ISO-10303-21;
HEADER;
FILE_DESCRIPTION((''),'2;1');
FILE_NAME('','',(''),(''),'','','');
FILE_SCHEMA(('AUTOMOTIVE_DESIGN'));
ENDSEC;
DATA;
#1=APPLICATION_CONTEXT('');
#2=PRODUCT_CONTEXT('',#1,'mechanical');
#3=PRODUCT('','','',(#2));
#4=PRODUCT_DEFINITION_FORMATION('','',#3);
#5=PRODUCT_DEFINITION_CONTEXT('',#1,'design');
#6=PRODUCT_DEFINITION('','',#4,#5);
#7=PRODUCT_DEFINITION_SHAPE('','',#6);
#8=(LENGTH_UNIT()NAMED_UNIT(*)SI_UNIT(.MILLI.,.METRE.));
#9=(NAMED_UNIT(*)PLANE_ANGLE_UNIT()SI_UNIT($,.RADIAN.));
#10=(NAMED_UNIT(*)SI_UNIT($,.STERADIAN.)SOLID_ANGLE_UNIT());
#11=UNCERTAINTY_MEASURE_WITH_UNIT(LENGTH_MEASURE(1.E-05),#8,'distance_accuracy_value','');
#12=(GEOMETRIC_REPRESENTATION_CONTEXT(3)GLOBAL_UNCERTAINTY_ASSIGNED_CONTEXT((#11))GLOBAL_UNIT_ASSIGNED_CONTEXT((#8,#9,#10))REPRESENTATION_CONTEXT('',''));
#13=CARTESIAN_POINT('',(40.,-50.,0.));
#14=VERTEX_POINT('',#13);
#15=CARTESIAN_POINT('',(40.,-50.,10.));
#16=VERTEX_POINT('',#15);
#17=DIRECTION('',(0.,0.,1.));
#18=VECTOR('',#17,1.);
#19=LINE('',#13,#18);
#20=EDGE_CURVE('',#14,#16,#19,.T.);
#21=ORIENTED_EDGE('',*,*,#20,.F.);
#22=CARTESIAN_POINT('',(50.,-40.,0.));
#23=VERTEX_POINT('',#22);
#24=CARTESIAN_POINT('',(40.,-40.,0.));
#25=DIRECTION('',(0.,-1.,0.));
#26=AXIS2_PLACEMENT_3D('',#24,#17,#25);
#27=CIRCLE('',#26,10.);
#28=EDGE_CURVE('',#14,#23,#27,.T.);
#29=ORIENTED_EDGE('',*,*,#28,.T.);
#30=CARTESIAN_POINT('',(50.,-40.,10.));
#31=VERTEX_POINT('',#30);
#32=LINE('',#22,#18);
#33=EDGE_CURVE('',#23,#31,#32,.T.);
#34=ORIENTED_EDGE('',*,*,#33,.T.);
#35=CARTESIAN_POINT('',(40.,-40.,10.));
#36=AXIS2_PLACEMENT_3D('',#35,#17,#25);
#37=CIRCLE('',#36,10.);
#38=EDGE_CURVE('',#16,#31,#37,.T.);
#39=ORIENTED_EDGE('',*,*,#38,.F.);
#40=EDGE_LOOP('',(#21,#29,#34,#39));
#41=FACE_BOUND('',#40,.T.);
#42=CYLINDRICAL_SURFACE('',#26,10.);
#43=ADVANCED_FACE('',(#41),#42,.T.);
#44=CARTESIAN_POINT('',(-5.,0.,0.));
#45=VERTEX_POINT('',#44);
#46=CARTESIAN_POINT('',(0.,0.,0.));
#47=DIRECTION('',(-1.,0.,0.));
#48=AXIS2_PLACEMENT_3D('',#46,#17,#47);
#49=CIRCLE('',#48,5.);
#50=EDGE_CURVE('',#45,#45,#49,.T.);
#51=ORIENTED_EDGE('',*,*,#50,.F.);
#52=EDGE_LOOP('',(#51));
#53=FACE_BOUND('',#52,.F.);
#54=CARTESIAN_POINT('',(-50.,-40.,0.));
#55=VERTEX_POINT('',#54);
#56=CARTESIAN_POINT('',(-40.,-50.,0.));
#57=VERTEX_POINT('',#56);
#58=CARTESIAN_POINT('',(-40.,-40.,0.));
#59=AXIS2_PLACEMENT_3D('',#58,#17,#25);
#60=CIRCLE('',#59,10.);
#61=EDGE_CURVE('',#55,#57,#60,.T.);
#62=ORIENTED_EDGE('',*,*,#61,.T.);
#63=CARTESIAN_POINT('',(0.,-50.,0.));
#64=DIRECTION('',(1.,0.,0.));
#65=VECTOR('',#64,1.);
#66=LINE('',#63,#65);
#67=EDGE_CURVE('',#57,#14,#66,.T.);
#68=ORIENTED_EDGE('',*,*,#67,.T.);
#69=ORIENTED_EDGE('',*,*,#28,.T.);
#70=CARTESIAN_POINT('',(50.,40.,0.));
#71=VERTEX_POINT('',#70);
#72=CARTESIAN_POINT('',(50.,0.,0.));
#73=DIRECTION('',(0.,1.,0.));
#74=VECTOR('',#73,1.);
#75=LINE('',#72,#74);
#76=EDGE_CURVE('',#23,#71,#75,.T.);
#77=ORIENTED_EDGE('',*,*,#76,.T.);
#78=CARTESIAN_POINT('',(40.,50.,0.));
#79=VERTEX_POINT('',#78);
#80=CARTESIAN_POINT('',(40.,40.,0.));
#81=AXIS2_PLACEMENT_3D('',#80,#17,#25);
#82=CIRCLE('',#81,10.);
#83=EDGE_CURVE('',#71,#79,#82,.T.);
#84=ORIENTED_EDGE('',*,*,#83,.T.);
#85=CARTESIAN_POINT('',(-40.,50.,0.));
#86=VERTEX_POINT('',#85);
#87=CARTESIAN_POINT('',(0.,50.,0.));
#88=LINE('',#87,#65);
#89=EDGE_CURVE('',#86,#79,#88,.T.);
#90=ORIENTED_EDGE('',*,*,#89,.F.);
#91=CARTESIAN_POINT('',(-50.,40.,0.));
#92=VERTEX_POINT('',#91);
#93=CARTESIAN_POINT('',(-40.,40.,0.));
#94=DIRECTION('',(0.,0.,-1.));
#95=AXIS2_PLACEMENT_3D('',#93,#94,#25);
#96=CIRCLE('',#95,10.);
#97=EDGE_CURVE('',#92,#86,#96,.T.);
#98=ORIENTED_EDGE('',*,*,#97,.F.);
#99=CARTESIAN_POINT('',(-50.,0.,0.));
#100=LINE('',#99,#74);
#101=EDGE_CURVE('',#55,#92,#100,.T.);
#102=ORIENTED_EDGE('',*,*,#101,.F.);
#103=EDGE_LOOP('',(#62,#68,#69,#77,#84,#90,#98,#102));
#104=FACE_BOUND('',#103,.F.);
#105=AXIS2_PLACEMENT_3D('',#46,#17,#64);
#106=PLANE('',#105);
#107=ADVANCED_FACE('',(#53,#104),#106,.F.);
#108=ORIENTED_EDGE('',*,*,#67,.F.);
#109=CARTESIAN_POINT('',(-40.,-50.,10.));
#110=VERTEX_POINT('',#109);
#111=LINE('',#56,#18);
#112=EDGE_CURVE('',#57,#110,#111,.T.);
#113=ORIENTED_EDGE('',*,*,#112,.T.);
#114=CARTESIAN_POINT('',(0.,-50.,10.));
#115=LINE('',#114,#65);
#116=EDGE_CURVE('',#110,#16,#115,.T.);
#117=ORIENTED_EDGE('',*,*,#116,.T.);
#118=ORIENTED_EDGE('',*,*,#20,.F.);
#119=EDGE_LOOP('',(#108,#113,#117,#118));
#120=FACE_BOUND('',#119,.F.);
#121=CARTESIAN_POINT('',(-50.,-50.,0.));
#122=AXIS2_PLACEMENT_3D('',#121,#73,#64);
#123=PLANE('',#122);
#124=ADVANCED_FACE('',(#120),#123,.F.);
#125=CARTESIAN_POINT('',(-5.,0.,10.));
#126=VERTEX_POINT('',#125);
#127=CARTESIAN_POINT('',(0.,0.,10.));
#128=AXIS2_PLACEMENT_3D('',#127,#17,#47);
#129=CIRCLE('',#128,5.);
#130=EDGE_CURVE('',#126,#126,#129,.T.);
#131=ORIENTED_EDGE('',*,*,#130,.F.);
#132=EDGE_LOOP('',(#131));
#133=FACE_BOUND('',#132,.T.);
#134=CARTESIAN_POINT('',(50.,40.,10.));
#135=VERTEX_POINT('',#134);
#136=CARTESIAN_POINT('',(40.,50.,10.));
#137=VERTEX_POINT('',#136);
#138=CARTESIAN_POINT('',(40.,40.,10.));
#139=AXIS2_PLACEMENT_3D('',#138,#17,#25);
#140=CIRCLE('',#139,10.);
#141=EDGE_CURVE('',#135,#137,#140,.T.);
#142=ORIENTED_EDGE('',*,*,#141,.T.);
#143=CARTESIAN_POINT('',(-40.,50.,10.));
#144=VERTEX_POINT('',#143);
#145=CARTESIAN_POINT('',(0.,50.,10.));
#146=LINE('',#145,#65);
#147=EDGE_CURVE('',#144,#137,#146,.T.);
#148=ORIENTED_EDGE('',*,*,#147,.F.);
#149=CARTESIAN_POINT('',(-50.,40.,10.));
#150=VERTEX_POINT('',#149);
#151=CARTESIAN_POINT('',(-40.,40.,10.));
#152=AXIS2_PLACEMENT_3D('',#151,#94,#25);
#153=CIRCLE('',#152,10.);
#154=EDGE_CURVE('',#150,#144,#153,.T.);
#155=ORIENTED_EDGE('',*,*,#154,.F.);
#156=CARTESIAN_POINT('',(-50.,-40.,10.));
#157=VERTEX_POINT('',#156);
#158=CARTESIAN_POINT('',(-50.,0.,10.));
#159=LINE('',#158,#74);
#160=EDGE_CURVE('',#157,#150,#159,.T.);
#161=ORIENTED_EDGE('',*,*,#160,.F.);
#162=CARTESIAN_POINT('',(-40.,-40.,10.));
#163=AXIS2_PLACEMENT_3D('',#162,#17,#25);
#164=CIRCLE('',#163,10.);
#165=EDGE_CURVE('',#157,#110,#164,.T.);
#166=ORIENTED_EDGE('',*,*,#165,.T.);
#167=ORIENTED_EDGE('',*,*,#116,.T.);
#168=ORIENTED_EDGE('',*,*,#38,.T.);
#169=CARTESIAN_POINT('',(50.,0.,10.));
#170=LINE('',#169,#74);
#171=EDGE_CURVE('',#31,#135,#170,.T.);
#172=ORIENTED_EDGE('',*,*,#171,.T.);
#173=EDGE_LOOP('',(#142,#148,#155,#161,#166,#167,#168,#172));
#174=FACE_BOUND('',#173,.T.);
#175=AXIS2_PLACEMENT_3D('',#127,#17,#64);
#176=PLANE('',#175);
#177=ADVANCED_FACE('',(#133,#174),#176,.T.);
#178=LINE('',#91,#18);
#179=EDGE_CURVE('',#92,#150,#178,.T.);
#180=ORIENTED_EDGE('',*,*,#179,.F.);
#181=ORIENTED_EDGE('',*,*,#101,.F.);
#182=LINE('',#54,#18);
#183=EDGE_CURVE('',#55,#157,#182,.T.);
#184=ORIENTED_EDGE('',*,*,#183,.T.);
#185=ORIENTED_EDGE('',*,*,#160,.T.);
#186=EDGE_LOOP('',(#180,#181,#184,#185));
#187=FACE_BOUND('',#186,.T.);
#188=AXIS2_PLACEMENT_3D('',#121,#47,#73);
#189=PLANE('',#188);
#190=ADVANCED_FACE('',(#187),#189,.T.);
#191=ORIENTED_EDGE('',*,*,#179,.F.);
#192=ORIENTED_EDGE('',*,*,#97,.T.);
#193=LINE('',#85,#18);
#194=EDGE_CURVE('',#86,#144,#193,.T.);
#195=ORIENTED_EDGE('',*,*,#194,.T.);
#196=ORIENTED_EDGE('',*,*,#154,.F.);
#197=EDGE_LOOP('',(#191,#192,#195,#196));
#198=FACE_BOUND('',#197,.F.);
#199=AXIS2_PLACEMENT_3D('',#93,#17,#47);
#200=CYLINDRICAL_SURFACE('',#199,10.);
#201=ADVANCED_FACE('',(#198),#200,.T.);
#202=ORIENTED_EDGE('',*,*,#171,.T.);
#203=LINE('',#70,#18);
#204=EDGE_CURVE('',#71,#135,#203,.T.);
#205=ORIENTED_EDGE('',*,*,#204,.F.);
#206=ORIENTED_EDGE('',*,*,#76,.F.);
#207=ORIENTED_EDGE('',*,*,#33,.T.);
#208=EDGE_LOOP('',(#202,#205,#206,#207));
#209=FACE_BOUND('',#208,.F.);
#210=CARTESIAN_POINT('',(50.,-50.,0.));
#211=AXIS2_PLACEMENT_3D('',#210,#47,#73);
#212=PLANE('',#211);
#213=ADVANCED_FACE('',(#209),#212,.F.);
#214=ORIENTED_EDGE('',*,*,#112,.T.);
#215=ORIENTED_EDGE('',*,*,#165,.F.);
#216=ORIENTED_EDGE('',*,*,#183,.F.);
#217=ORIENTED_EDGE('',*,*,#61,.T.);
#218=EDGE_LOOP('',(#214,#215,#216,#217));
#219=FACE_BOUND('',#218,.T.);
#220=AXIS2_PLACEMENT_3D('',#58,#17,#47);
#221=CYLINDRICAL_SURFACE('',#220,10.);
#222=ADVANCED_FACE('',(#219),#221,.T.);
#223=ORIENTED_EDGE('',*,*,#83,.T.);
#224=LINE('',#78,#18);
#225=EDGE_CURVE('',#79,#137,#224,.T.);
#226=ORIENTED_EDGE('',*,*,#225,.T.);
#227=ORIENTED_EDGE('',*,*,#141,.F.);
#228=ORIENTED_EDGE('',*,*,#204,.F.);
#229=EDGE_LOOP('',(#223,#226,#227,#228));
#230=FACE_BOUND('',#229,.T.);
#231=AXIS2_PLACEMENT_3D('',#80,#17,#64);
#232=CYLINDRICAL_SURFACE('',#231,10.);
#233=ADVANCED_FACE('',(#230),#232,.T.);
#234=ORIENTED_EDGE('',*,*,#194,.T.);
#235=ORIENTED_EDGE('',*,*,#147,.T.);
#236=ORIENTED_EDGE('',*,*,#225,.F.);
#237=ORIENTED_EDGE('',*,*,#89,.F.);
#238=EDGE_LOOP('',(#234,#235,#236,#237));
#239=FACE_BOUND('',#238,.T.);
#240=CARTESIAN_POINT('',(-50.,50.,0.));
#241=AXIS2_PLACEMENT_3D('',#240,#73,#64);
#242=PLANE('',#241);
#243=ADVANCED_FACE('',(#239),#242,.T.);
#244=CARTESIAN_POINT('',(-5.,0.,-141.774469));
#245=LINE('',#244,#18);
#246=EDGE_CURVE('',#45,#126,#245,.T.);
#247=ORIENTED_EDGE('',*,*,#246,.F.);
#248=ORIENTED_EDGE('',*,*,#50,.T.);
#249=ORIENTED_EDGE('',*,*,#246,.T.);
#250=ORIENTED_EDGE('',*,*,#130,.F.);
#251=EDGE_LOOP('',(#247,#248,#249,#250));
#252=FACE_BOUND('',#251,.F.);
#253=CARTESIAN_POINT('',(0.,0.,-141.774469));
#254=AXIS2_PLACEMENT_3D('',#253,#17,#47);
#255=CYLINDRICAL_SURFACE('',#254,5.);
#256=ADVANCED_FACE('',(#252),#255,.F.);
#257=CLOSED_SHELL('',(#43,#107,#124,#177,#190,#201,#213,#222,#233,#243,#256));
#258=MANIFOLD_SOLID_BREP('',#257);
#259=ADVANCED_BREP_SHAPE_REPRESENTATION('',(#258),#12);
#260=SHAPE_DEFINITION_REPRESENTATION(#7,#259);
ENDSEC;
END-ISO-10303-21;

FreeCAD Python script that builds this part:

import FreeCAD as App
import Part
import Sketcher
Q = App.Units.Quantity


def edges_at(feature, points):
    """Names of the edges that pass closest to the given points."""
    edges = feature.Shape.Edges
    near = lambda p: min(range(len(edges)), key=lambda i: edges[i].distToShape(Part.Vertex(*p))[0])
    return sorted({f"Edge{near(p) + 1}" for p in points})


def add_polygon(sketch, points):
    """Adds a closed chain of lines whose ends are joined by coincident constraints."""
    first, n = sketch.GeometryCount, len(points)
    for a, b in zip(points, points[1:] + points[:1]):
        sketch.addGeometry(Part.LineSegment(App.Vector(*a, 0), App.Vector(*b, 0)), False)
    for i in range(n):
        sketch.addConstraint(Sketcher.Constraint("Coincident", first + i, 2, first + (i + 1) % n, 1))

doc = App.newDocument("Part")
params = doc.addObject("Spreadsheet::Sheet", "Params")
for row, (alias, value) in enumerate([
    ("sketch1_width", "100 mm"),
    ("pad1_length", "10 mm"),
    ("fillet_radius", "10 mm"),
    ("sketch2_diameter", "10 mm"),
    ("hole_diameter", "10 mm"),
], start=1):
    params.set(f"A{row}", alias)
    params.set(f"B{row}", "=" + value)
    params.setAlias(f"B{row}", alias)

body = doc.addObject("PartDesign::Body", "Body")

sketch1 = body.newObject("Sketcher::SketchObject", "Sketch")
sketch1.AttachmentSupport = (doc.getObject("XY_Plane"), [""])
sketch1.MapMode = "FlatFace"
add_polygon(sketch1, [(-50, 50), (-50, -50), (50, -50), (50, 50)])
sketch1.addConstraint(Sketcher.Constraint("Vertical", 0))
sketch1.addConstraint(Sketcher.Constraint("Horizontal", 1))
sketch1.addConstraint(Sketcher.Constraint("Vertical", 2))
sketch1.addConstraint(Sketcher.Constraint("Horizontal", 3))
sketch1.addConstraint(Sketcher.Constraint("Symmetric", 0, 2, 2, 2, -1, 1))
sketch1.addConstraint(Sketcher.Constraint("Equal", 3, 0))
sketch1.addConstraint(Sketcher.Constraint("DistanceX", 1, 1, 1, 2, Q("100 mm")))
sketch1.setExpression("Constraints[10]", "Params.sketch1_width")
pad1 = body.newObject("PartDesign::Pad", "Pad")
pad1.Profile = sketch1
pad1.setExpression("Length", "Params.pad1_length")
doc.recompute()

fillet = body.newObject("PartDesign::Fillet", "Fillet")
fillet.Base = (pad1, edges_at(pad1, [
    (-50, -50, 5),
    (50, -50, 5),
    (50, 50, 5),
    (-50, 50, 5),
]))
fillet.setExpression("Radius", "Params.fillet_radius")

sketch2 = body.newObject("Sketcher::SketchObject", "Sketch001")
sketch2.AttachmentSupport = (doc.getObject("XY_Plane"), [""])
sketch2.MapMode = "FlatFace"
sketch2.addGeometry(Part.Circle(App.Vector(0, 0, 0), App.Vector(0, 0, 1), 5), False)
sketch2.addConstraint(Sketcher.Constraint("Coincident", 0, 3, -1, 1))
sketch2.addConstraint(Sketcher.Constraint("Diameter", 0, Q("10 mm")))
sketch2.setExpression("Constraints[1]", "Params.sketch2_diameter")
doc.recompute()
hole = body.newObject("PartDesign::Hole", "Hole")
hole.Profile = sketch2
hole.ThreadType = "None"
hole.setExpression("Diameter", "Params.hole_diameter")
hole.DepthType = "ThroughAll"
hole.Reversed = True

doc.recompute()
